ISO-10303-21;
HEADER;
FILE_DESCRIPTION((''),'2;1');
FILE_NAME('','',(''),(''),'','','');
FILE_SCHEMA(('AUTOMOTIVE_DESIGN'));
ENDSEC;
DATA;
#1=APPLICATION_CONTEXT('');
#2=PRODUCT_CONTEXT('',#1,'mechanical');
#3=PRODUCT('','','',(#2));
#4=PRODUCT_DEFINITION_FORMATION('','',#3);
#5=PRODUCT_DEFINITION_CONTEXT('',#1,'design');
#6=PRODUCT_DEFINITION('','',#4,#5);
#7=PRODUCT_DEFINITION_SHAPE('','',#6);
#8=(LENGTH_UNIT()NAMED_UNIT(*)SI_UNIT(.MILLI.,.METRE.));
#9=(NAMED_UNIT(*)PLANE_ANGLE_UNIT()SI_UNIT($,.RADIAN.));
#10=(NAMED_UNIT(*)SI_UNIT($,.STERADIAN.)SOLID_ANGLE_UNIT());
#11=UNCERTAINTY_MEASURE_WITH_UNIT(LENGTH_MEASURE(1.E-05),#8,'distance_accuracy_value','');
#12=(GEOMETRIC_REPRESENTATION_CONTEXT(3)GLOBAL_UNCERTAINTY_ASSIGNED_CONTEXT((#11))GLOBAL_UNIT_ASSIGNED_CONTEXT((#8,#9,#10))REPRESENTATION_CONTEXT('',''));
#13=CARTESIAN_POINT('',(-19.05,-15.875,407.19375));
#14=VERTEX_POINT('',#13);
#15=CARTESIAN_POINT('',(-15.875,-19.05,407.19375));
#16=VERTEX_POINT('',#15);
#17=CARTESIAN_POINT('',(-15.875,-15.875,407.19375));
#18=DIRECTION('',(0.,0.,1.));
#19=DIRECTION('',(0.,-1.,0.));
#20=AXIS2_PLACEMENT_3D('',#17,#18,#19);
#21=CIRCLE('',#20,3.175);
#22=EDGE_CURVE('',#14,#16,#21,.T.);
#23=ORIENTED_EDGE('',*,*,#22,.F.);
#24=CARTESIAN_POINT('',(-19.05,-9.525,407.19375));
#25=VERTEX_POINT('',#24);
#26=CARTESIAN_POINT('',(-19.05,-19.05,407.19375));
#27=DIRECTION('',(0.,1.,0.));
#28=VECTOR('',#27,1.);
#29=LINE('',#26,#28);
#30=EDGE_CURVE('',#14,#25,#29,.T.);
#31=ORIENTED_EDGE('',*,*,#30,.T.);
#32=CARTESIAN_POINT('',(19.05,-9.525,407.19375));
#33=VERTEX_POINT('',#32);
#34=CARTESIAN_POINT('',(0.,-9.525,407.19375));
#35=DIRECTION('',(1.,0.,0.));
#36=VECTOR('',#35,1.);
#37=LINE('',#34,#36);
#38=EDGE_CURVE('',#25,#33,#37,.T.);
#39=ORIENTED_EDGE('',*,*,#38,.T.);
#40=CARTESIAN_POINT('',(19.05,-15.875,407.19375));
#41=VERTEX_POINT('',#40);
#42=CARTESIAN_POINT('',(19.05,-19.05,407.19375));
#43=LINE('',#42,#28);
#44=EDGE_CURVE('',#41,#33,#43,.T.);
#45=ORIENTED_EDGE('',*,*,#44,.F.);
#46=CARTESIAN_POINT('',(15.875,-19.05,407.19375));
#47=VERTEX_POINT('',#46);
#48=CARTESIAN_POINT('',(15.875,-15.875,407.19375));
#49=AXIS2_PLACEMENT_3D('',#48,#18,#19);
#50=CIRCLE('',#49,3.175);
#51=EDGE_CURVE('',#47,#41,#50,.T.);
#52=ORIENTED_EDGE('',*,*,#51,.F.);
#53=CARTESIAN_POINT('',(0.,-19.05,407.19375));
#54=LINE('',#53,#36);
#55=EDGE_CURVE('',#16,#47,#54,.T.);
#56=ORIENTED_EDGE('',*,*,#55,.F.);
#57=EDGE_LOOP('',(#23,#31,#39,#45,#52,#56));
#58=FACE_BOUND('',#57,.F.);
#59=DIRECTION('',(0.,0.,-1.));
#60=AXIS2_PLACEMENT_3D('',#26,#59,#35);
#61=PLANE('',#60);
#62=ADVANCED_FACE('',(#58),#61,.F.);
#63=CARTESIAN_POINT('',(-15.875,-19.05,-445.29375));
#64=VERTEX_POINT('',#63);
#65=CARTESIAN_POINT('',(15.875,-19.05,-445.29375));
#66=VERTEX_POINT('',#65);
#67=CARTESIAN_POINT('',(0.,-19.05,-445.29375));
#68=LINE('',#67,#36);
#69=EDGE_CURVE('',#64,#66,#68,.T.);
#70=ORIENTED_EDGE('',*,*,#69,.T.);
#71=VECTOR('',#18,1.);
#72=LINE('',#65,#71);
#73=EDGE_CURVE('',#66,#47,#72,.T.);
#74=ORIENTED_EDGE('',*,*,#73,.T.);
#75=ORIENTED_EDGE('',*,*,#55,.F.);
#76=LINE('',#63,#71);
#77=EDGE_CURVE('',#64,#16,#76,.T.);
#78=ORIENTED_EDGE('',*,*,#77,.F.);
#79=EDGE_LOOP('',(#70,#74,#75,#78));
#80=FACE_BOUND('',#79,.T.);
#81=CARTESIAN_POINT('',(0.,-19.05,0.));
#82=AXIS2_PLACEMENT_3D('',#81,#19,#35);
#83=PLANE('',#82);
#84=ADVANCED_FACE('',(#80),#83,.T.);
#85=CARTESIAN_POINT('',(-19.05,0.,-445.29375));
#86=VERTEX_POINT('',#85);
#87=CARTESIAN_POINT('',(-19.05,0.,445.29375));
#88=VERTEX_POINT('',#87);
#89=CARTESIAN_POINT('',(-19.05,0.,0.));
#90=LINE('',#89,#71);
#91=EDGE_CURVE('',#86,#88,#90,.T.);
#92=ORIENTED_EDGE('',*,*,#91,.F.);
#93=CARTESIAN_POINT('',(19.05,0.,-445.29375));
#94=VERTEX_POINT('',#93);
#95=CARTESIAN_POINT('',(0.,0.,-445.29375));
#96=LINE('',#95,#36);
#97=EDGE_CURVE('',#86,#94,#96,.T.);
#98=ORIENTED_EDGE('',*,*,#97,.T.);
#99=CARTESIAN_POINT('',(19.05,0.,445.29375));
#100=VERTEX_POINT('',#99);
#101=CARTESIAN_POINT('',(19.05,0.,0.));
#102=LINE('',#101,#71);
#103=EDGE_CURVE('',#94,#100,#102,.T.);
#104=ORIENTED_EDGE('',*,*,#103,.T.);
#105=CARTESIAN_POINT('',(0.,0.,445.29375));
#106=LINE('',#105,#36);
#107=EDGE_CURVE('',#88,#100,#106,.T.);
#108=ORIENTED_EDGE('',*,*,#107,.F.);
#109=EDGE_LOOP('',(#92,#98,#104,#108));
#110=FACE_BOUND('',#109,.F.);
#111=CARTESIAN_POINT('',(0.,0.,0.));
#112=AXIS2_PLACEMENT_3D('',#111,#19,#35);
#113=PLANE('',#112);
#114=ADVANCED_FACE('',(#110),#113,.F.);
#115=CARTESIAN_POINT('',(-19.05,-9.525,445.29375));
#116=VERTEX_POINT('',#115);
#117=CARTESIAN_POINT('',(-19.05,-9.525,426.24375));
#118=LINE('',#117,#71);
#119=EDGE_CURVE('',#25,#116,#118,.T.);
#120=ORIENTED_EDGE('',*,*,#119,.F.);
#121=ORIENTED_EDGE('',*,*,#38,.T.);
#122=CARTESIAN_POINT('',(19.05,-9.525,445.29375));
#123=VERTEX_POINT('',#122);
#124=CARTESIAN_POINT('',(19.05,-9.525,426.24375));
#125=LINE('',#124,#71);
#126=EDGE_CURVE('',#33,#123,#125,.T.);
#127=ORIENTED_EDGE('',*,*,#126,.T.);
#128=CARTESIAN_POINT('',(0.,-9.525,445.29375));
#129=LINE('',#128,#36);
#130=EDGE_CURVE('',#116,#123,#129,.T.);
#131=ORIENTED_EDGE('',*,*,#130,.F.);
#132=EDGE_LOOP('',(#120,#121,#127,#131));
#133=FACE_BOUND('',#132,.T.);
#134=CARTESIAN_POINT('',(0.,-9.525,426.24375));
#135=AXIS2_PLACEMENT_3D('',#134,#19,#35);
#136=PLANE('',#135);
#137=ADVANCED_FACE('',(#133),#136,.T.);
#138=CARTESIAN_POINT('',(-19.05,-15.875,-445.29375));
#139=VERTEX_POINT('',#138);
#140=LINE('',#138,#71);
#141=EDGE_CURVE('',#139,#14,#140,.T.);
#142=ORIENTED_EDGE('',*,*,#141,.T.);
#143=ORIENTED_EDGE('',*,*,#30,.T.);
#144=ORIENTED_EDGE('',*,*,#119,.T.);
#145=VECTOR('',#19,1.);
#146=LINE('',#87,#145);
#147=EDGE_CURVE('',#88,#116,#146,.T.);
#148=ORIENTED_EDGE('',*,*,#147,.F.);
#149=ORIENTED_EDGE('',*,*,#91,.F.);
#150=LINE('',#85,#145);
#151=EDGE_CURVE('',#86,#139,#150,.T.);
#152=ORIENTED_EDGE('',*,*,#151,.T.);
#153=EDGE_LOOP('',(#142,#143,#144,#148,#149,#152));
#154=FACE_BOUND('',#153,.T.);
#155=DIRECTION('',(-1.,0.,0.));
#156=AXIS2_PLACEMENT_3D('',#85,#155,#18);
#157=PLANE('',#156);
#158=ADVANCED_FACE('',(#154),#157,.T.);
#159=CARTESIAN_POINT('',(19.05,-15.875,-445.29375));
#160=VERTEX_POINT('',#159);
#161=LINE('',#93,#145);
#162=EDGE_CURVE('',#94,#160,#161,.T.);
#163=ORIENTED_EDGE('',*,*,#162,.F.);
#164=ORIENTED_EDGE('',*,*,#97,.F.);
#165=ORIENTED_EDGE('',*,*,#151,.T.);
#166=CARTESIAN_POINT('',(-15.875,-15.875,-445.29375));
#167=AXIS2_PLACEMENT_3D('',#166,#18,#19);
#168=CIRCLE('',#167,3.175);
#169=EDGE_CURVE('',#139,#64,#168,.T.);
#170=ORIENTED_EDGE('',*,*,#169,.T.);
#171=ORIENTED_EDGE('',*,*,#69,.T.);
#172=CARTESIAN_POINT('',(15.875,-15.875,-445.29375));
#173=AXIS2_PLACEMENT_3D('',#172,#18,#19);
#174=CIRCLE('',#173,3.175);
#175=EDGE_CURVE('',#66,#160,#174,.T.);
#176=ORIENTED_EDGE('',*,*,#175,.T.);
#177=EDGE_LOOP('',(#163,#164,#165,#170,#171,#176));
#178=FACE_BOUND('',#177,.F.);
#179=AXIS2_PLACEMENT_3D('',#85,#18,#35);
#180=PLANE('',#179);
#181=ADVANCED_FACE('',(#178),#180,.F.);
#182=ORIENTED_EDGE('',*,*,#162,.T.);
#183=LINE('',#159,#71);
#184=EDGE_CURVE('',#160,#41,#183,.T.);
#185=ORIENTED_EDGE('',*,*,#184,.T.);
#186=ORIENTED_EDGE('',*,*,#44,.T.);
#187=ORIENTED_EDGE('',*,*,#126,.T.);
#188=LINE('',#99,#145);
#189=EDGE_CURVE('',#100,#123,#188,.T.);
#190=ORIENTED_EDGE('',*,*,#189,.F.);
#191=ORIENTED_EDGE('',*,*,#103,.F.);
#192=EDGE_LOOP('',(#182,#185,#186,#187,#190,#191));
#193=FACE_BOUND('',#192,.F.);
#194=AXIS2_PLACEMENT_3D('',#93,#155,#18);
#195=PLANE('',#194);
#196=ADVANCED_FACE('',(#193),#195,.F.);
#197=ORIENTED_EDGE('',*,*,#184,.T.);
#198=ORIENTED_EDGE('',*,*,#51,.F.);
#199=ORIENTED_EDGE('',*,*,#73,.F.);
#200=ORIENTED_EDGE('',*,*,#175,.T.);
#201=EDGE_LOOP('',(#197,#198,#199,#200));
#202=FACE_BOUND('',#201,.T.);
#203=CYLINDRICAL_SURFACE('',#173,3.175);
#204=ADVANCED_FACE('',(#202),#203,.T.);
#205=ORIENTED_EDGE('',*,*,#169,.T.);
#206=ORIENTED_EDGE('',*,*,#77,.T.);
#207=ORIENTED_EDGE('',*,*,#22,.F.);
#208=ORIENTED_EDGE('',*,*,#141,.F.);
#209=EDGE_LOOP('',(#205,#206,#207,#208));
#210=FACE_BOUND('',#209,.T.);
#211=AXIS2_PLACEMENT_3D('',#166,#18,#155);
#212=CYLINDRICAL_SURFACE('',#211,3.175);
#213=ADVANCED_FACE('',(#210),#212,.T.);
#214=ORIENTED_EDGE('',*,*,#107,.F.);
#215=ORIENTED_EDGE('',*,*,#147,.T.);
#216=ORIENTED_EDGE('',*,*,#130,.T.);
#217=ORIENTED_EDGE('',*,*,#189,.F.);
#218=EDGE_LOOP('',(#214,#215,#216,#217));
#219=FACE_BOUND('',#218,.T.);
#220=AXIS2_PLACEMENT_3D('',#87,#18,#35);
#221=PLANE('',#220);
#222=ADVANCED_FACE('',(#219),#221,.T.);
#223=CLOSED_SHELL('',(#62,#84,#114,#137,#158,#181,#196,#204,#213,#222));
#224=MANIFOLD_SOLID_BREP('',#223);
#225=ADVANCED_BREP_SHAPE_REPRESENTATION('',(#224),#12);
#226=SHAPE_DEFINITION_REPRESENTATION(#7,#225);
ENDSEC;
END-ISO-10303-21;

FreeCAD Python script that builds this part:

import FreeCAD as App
import Part
import Sketcher

V = App.Vector
Q = App.Units.Quantity


def edges_at(feature, points):
    """Names of the edges that pass closest to the given points."""
    edges = feature.Shape.Edges
    near = lambda p: min(range(len(edges)), key=lambda i: edges[i].distToShape(Part.Vertex(*p))[0])
    return sorted({f"Edge{near(p) + 1}" for p in points})


def add_polygon(sketch, points):
    """Adds a closed chain of lines whose ends are joined by coincident constraints."""
    first, n = sketch.GeometryCount, len(points)
    for a, b in zip(points, points[1:] + points[:1]):
        sketch.addGeometry(Part.LineSegment(App.Vector(*a, 0), App.Vector(*b, 0)), False)
    for i in range(n):
        sketch.addConstraint(Sketcher.Constraint("Coincident", first + i, 2, first + (i + 1) % n, 1))

doc = App.newDocument("Part")
body = doc.addObject("PartDesign::Body", "Body")

# Sketch on XZ plane
sketch1 = body.newObject("Sketcher::SketchObject", "Sketch")
sketch1.AttachmentSupport = (doc.getObject("XZ_Plane"), [""])
sketch1.MapMode = "FlatFace"
add_polygon(sketch1, [(-19.05, 445.29375), (-19.05, -445.29375), (19.05, -445.29375), (19.05, 445.29375)])  # lines 0-3
sketch1.addConstraint(Sketcher.Constraint("Vertical", 0))
sketch1.addConstraint(Sketcher.Constraint("Horizontal", 1))
sketch1.addConstraint(Sketcher.Constraint("Vertical", 2))
sketch1.addConstraint(Sketcher.Constraint("Horizontal", 3))
sketch1.addConstraint(Sketcher.Constraint("Symmetric", 0, 2, 2, 2, -1, 1))
sketch1.addConstraint(Sketcher.Constraint("DistanceX", 1, 1, 1, 2, Q("1.5 in")))
sketch1.addConstraint(Sketcher.Constraint("DistanceY", 0, 2, 0, 1, Q("35.0625 in")))
pad1 = body.newObject("PartDesign::Pad", "Pad")
pad1.Profile = sketch1
pad1.Length = Q("0.75 in")

# Sketch on XZ plane
sketch2 = body.newObject("Sketcher::SketchObject", "Sketch001")
sketch2.AttachmentSupport = (doc.getObject("XZ_Plane"), [""])
sketch2.MapMode = "FlatFace"
sketch2.AttachmentOffset = App.Placement(V(0, 0, 0.75 * 25.4), App.Rotation())
add_polygon(sketch2, [(-19.05, 445.29375), (-19.05, 407.19375), (19.05, 407.19375), (19.05, 445.29375)])  # lines 0-3
sketch2.addConstraint(Sketcher.Constraint("Vertical", 0))
sketch2.addConstraint(Sketcher.Constraint("Horizontal", 1))
sketch2.addConstraint(Sketcher.Constraint("Vertical", 2))
sketch2.addConstraint(Sketcher.Constraint("Horizontal", 3))
sketch2.addConstraint(Sketcher.Constraint("Equal", 3, 0))
sketch2.addConstraint(Sketcher.Constraint("DistanceX", 1, 1, 1, 2, Q("1.5 in")))
sketch2.addConstraint(Sketcher.Constraint("DistanceX", 0, 2, -1, 1, Q("0.75 in")))
sketch2.addConstraint(Sketcher.Constraint("DistanceY", -1, 1, 0, 2, Q("16.03125 in")))
pocket1 = body.newObject("PartDesign::Pocket", "Pocket")
pocket1.Profile = sketch2
pocket1.Length = Q("0.375 in")
doc.recompute()

fillet = body.newObject("PartDesign::Fillet", "Fillet")
fillet.Base = (pocket1, edges_at(pocket1, [(-19.05, -19.05, -19.05), (19.05, -19.05, -19.05)]))
fillet.Radius = Q("0.125 in")

doc.recompute()
